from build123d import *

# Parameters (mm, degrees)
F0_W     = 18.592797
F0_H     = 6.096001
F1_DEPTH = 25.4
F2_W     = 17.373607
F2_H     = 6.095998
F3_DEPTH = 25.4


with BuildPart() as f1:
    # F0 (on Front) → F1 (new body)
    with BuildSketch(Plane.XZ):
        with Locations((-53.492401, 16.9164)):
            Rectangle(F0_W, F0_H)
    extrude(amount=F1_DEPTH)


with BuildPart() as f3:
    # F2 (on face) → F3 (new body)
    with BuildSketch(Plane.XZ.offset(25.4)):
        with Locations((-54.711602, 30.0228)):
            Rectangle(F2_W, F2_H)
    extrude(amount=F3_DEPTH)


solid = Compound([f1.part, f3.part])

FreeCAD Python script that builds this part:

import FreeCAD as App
import Part
import Sketcher

V = App.Vector
Q = App.Units.Quantity

doc = App.newDocument("Part")
body = doc.addObject("PartDesign::Body", "Body")

# Sketch on XZ plane
sketch1 = doc.addObject("Sketcher::SketchObject", "Sketch")
body.addObject(sketch1)
sketch1.AttachmentSupport = (doc.XZ_Plane, [""])
sketch1.MapMode = "FlatFace"
sketch1.addGeometry([
    Part.LineSegment(V(-63, 20, 0), V(-63, 14, 0)),
    Part.LineSegment(V(-63, 14, 0), V(-44, 14, 0)),
    Part.LineSegment(V(-44, 14, 0), V(-44, 20, 0)),
    Part.LineSegment(V(-44, 20, 0), V(-63, 20, 0)),
], False)
sketch1.addConstraint([
    Sketcher.Constraint("Coincident", 0, 2, 1, 1),
    Sketcher.Constraint("Coincident", 1, 2, 2, 1),
    Sketcher.Constraint("Coincident", 2, 2, 3, 1),
    Sketcher.Constraint("Coincident", 3, 2, 0, 1),
    Sketcher.Constraint("Vertical", 0),
    Sketcher.Constraint("Horizontal", 1),
    Sketcher.Constraint("Vertical", 2),
    Sketcher.Constraint("Horizontal", 3),
    Sketcher.Constraint("DistanceY", 0, 2, 0, 1, Q("0.24 in")),
    Sketcher.Constraint("DistanceX", 1, 1, 1, 2, Q("0.7319999 in")),
    Sketcher.Constraint("DistanceX", 1, 2, -1, 1, Q("1.7400001 in")),
    Sketcher.Constraint("DistanceY", -1, 1, 0, 2, Q("0.546 in")),
])
pad1 = doc.addObject("PartDesign::Pad", "Pad")
body.addObject(pad1)
pad1.Profile = sketch1
pad1.Length = Q("1 in")
body2 = doc.addObject("PartDesign::Body", "Body001")

# Sketch on XZ plane
sketch2 = doc.addObject("Sketcher::SketchObject", "Sketch001")
body2.addObject(sketch2)
sketch2.AttachmentSupport = (doc.getObject("XZ_Plane001"), [""])
sketch2.MapMode = "FlatFace"
sketch2.AttachmentOffset = App.Placement(V(0, 0, 1 * 25.4), App.Rotation())
sketch2.addGeometry([
    Part.LineSegment(V(-63, 33, 0), V(-63, 27, 0)),
    Part.LineSegment(V(-63, 27, 0), V(-46, 27, 0)),
    Part.LineSegment(V(-46, 27, 0), V(-46, 33, 0)),
    Part.LineSegment(V(-46, 33, 0), V(-63, 33, 0)),
], False)
sketch2.addConstraint([
    Sketcher.Constraint("Coincident", 0, 2, 1, 1),
    Sketcher.Constraint("Coincident", 1, 2, 2, 1),
    Sketcher.Constraint("Coincident", 2, 2, 3, 1),
    Sketcher.Constraint("Coincident", 3, 2, 0, 1),
    Sketcher.Constraint("Vertical", 0),
    Sketcher.Constraint("Horizontal", 1),
    Sketcher.Constraint("Vertical", 2),
    Sketcher.Constraint("Horizontal", 3),
    Sketcher.Constraint("DistanceY", 0, 2, 0, 1, Q("0.2399999 in")),
    Sketcher.Constraint("DistanceY", -1, 1, 0, 2, Q("1.062 in")),
    Sketcher.Constraint("DistanceX", 1, 2, -1, 1, Q("1.8119999 in")),
    Sketcher.Constraint("DistanceX", 1, 1, 1, 2, Q("17.373607 mm")),
])
pad2 = doc.addObject("PartDesign::Pad", "Pad001")
body2.addObject(pad2)
pad2.Profile = sketch2
pad2.Length = Q("1 in")

doc.recompute()
